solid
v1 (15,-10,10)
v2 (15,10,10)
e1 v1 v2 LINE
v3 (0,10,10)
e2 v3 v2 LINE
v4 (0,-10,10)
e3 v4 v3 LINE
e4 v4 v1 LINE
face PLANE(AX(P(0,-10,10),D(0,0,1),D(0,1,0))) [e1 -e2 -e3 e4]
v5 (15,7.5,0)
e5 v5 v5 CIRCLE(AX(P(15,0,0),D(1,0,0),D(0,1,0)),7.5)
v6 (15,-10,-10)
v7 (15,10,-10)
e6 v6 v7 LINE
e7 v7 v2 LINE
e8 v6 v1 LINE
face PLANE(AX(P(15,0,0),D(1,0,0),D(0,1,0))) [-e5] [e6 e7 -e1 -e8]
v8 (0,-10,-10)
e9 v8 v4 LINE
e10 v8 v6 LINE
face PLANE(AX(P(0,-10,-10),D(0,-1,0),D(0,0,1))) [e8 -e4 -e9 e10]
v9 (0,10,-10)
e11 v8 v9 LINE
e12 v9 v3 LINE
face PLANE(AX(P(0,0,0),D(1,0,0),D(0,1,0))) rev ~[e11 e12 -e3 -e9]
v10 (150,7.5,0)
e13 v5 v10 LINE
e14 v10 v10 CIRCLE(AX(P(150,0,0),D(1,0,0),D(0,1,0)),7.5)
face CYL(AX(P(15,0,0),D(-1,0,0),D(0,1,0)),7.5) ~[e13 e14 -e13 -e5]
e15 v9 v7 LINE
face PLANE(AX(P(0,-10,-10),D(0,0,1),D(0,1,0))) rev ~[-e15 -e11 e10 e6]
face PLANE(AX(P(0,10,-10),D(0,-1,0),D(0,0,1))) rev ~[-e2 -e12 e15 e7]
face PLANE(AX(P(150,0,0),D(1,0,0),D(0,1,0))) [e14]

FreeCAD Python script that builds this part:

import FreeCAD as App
import Part
import Sketcher

V = App.Vector


def add_polygon(sketch, points):
    """Adds a closed chain of lines whose ends are joined by coincident constraints."""
    first, n = sketch.GeometryCount, len(points)
    for a, b in zip(points, points[1:] + points[:1]):
        sketch.addGeometry(Part.LineSegment(App.Vector(*a, 0), App.Vector(*b, 0)), False)
    for i in range(n):
        sketch.addConstraint(Sketcher.Constraint("Coincident", first + i, 2, first + (i + 1) % n, 1))

doc = App.newDocument("Part")
params = doc.addObject("Spreadsheet::Sheet", "Params")
for row, (alias, value) in enumerate([
    ("sketch1_width", "20 mm"),
    ("pad1_length", "15 mm"),
    ("sketch2_diameter", "15 mm"),
    ("pad2_length", "135 mm"),
], start=1):
    params.set(f"A{row}", alias)
    params.set(f"B{row}", "=" + value)
    params.setAlias(f"B{row}", alias)

body = doc.addObject("PartDesign::Body", "Body")

# Sketch on YZ plane
sketch1 = body.newObject("Sketcher::SketchObject", "Sketch")
sketch1.AttachmentSupport = (doc.getObject("YZ_Plane"), [""])
sketch1.MapMode = "FlatFace"
add_polygon(sketch1, [(-10, 10), (-10, -10), (10, -10), (10, 10)])  # lines 0-3
sketch1.addConstraint(Sketcher.Constraint("Vertical", 0))
sketch1.addConstraint(Sketcher.Constraint("Horizontal", 1))
sketch1.addConstraint(Sketcher.Constraint("Vertical", 2))
sketch1.addConstraint(Sketcher.Constraint("Horizontal", 3))
sketch1.addConstraint(Sketcher.Constraint("Symmetric", 0, 2, 2, 2, -1, 1))
sketch1.addConstraint(Sketcher.Constraint("Equal", 3, 0))
sketch1.addConstraint(Sketcher.Constraint("DistanceX", 1, 1, 1, 2, 20.0))
sketch1.setExpression("Constraints[10]", "Params.sketch1_width")
pad1 = body.newObject("PartDesign::Pad", "Pad")
pad1.Profile = sketch1
pad1.setExpression("Length", "Params.pad1_length")

# Sketch on YZ plane
sketch2 = body.newObject("Sketcher::SketchObject", "Sketch001")
sketch2.AttachmentSupport = (doc.getObject("YZ_Plane"), [""])
sketch2.MapMode = "FlatFace"
sketch2.AttachmentOffset = App.Placement(V(0, 0, 15), App.Rotation())
sketch2.addGeometry(Part.Circle(V(0, 0, 0), V(0, 0, 1), 8), False)
sketch2.addConstraint(Sketcher.Constraint("Coincident", 0, 3, -1, 1))
sketch2.addConstraint(Sketcher.Constraint("Diameter", 0, 15.0))
sketch2.setExpression("Constraints[1]", "Params.sketch2_diameter")
pad2 = body.newObject("PartDesign::Pad", "Pad001")
pad2.Profile = sketch2
pad2.setExpression("Length", "Params.pad2_length")

doc.recompute()
